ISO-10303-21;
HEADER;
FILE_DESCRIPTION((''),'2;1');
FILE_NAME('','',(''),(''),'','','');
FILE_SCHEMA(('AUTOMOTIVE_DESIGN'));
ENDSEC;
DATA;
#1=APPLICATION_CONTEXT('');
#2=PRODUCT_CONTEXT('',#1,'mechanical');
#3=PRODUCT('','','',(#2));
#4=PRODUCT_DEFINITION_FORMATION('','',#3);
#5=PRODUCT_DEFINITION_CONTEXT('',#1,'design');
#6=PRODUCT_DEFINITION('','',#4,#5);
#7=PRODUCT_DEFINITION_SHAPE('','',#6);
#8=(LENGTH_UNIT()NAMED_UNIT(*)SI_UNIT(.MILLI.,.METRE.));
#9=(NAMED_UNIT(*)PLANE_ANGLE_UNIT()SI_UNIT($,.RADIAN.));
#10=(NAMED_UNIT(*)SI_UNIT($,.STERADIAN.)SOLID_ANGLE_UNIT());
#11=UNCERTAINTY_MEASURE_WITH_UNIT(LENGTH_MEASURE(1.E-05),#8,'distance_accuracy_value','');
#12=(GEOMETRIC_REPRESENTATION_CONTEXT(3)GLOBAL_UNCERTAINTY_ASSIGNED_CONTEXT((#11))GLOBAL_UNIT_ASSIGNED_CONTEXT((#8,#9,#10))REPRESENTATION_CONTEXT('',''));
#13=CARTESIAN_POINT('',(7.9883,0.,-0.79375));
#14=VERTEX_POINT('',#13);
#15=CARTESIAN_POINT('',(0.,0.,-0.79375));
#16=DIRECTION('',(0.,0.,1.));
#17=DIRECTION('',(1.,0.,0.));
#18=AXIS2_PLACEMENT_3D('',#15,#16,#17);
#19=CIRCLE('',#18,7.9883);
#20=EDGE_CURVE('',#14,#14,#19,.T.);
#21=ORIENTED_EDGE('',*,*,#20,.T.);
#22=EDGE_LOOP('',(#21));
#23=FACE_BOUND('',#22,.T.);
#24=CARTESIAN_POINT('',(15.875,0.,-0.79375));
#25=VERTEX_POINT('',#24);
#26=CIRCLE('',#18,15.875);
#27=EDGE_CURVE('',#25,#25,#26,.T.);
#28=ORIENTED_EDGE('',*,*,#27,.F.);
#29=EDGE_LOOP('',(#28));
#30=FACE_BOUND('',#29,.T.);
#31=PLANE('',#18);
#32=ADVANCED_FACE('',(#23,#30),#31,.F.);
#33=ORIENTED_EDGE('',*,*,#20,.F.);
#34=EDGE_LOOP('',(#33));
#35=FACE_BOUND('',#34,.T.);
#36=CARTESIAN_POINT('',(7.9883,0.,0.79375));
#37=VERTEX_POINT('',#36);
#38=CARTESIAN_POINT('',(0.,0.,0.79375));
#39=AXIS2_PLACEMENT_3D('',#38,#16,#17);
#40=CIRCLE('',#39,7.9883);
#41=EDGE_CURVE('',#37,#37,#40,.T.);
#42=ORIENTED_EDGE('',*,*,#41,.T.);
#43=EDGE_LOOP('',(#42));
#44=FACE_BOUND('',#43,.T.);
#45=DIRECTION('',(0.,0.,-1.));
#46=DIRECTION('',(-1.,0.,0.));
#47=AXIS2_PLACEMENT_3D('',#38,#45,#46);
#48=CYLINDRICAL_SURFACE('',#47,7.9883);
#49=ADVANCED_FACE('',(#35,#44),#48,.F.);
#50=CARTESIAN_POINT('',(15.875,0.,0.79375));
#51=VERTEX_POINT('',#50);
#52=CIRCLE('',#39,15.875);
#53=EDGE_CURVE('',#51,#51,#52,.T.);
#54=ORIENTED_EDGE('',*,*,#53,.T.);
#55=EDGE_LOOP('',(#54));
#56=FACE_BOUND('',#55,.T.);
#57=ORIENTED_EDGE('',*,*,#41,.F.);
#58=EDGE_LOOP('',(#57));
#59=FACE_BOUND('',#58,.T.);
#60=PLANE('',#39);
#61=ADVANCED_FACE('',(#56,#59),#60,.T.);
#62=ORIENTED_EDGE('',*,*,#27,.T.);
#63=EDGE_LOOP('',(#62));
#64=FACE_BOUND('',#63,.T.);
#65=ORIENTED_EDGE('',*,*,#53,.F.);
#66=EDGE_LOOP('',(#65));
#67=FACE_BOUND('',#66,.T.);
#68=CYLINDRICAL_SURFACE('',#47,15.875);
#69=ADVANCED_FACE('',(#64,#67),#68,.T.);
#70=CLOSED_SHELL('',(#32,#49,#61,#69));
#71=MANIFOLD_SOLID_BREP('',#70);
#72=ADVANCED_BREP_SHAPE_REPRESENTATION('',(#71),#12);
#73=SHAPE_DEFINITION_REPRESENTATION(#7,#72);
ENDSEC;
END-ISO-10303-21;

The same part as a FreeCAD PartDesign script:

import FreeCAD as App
import Part
import Sketcher
from FreeCAD import Vector
Q = App.Units.Quantity

doc = App.newDocument("Part")
params = doc.addObject("Spreadsheet::Sheet", "Params")
for row, (alias, value) in enumerate([
    ("sketch1_diameter", "1.25 in"),
    ("sketch1_diameter2", "0.629 in"),
    ("pad1_length", "0.0625 in"),
], start=1):
    params.set(f"A{row}", alias)
    params.set(f"B{row}", "=" + value)
    params.setAlias(f"B{row}", alias)

body = doc.addObject("PartDesign::Body", "Body")

# Sketch on XY plane
sketch1 = doc.addObject("Sketcher::SketchObject", "Sketch")
body.addObject(sketch1)
sketch1.AttachmentSupport = (doc.XY_Plane, [""])
sketch1.MapMode = "FlatFace"
sketch1.addGeometry(Part.Circle(Vector(0, 0, 0), Vector(0, 0, 1), 16), False)
sketch1.addGeometry(Part.Circle(Vector(0, 0, 0), Vector(0, 0, 1), 8), False)
sketch1.addConstraint(Sketcher.Constraint("Coincident", 0, 3, -1, 1))
sketch1.addConstraint(Sketcher.Constraint("Coincident", 1, 3, -1, 1))
sketch1.addConstraint(Sketcher.Constraint("Diameter", 0, Q("1.25 in")))
sketch1.addConstraint(Sketcher.Constraint("Diameter", 1, Q("0.629 in")))
sketch1.setExpression("Constraints[2]", "Params.sketch1_diameter")
sketch1.setExpression("Constraints[3]", "Params.sketch1_diameter2")
pad1 = doc.addObject("PartDesign::Pad", "Pad")
body.addObject(pad1)
pad1.Profile = sketch1
pad1.setExpression("Length", "Params.pad1_length")
pad1.Midplane = True

doc.recompute()
